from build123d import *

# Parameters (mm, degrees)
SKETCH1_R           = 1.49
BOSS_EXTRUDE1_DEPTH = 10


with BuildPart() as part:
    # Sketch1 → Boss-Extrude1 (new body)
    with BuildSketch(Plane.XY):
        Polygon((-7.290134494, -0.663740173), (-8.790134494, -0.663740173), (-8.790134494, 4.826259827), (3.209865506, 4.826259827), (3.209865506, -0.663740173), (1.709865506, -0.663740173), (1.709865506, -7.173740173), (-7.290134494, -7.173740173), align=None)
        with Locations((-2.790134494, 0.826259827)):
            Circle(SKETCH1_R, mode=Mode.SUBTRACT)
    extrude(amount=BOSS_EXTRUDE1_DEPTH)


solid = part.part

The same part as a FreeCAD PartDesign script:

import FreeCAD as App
import Part
import Sketcher
from FreeCAD import Vector

doc = App.newDocument("Part")
params = doc.addObject("Spreadsheet::Sheet", "Params")
for row, (alias, value) in enumerate([
    ("sketch1_diameter", "2.98 mm"),
    ("sketch1_width", "9 mm"),
    ("sketch1_width2", "12 mm"),
    ("sketch1_height", "6.51 mm"),
    ("pad1_length", "10 mm"),
], start=1):
    params.set(f"A{row}", alias)
    params.set(f"B{row}", "=" + value)
    params.setAlias(f"B{row}", alias)

body = doc.addObject("PartDesign::Body", "Body")

# Sketch on XY plane
sketch1 = body.newObject("Sketcher::SketchObject", "Sketch")
sketch1.AttachmentSupport = (doc.getObject("XY_Plane"), [""])
sketch1.MapMode = "FlatFace"
sketch1.addGeometry([
    Part.LineSegment(Vector(-8.8, -0.7, 0), Vector(-7.3, -0.7, 0)),  # 0
    Part.LineSegment(Vector(-7.3, -0.7, 0), Vector(-7.3, -7.2, 0)),  # 1
    Part.LineSegment(Vector(-7.3, -7.2, 0), Vector(1.7, -7.2, 0)),  # 2
    Part.LineSegment(Vector(1.7, -7.2, 0), Vector(1.7, -0.7, 0)),  # 3
    Part.LineSegment(Vector(1.7, -0.7, 0), Vector(3.2, -0.7, 0)),  # 4
    Part.LineSegment(Vector(3.2, -0.7, 0), Vector(3.2, 4.8, 0)),  # 5
    Part.LineSegment(Vector(3.2, 4.8, 0), Vector(-8.8, 4.8, 0)),  # 6
    Part.LineSegment(Vector(-8.8, 4.8, 0), Vector(-8.8, -0.7, 0)),  # 7
    Part.Circle(Vector(-2.8, 0.8, 0), Vector(0, 0, 1), 1.5),  # 8
], False)
sketch1.addConstraint([
    Sketcher.Constraint("Coincident", 0, 2, 1, 1),
    Sketcher.Constraint("Coincident", 1, 2, 2, 1),
    Sketcher.Constraint("Coincident", 2, 2, 3, 1),
    Sketcher.Constraint("Coincident", 3, 2, 4, 1),
    Sketcher.Constraint("Coincident", 4, 2, 5, 1),
    Sketcher.Constraint("Coincident", 5, 2, 6, 1),
    Sketcher.Constraint("Coincident", 6, 2, 7, 1),
    Sketcher.Constraint("Coincident", 7, 2, 0, 1),
    Sketcher.Constraint("Horizontal", 0),
    Sketcher.Constraint("Vertical", 1),
    Sketcher.Constraint("Horizontal", 2),
    Sketcher.Constraint("Vertical", 3),
    Sketcher.Constraint("Horizontal", 4),
    Sketcher.Constraint("Vertical", 5),
    Sketcher.Constraint("Horizontal", 6),
    Sketcher.Constraint("Vertical", 7),
    Sketcher.Constraint("Horizontal", 0, 2, 3, 2),
    Sketcher.Constraint("Equal", 0, 4),
    Sketcher.Constraint("Diameter", 8, 2.98),
    Sketcher.Constraint("DistanceX", 2, 1, 2, 2, 9.0),
    Sketcher.Constraint("DistanceX", 6, 2, 6, 1, 12.0),
    Sketcher.Constraint("DistanceY", 1, 2, 8, 3, 8.0),
    Sketcher.Constraint("DistanceX", 8, 3, 4, 2, 6.0),
    Sketcher.Constraint("DistanceY", 8, 3, 5, 2, 4.0),
    Sketcher.Constraint("DistanceY", 1, 2, 1, 1, 6.51),
    Sketcher.Constraint("DistanceY", -1, 1, 8, 3, 0.82626),
    Sketcher.Constraint("DistanceX", 8, 3, -1, 1, 2.790134),
])
sketch1.setExpression("Constraints[18]", "Params.sketch1_diameter")
sketch1.setExpression("Constraints[19]", "Params.sketch1_width")
sketch1.setExpression("Constraints[20]", "Params.sketch1_width2")
sketch1.setExpression("Constraints[24]", "Params.sketch1_height")
pad1 = body.newObject("PartDesign::Pad", "Pad")
pad1.Profile = sketch1
pad1.setExpression("Length", "Params.pad1_length")

doc.recompute()
